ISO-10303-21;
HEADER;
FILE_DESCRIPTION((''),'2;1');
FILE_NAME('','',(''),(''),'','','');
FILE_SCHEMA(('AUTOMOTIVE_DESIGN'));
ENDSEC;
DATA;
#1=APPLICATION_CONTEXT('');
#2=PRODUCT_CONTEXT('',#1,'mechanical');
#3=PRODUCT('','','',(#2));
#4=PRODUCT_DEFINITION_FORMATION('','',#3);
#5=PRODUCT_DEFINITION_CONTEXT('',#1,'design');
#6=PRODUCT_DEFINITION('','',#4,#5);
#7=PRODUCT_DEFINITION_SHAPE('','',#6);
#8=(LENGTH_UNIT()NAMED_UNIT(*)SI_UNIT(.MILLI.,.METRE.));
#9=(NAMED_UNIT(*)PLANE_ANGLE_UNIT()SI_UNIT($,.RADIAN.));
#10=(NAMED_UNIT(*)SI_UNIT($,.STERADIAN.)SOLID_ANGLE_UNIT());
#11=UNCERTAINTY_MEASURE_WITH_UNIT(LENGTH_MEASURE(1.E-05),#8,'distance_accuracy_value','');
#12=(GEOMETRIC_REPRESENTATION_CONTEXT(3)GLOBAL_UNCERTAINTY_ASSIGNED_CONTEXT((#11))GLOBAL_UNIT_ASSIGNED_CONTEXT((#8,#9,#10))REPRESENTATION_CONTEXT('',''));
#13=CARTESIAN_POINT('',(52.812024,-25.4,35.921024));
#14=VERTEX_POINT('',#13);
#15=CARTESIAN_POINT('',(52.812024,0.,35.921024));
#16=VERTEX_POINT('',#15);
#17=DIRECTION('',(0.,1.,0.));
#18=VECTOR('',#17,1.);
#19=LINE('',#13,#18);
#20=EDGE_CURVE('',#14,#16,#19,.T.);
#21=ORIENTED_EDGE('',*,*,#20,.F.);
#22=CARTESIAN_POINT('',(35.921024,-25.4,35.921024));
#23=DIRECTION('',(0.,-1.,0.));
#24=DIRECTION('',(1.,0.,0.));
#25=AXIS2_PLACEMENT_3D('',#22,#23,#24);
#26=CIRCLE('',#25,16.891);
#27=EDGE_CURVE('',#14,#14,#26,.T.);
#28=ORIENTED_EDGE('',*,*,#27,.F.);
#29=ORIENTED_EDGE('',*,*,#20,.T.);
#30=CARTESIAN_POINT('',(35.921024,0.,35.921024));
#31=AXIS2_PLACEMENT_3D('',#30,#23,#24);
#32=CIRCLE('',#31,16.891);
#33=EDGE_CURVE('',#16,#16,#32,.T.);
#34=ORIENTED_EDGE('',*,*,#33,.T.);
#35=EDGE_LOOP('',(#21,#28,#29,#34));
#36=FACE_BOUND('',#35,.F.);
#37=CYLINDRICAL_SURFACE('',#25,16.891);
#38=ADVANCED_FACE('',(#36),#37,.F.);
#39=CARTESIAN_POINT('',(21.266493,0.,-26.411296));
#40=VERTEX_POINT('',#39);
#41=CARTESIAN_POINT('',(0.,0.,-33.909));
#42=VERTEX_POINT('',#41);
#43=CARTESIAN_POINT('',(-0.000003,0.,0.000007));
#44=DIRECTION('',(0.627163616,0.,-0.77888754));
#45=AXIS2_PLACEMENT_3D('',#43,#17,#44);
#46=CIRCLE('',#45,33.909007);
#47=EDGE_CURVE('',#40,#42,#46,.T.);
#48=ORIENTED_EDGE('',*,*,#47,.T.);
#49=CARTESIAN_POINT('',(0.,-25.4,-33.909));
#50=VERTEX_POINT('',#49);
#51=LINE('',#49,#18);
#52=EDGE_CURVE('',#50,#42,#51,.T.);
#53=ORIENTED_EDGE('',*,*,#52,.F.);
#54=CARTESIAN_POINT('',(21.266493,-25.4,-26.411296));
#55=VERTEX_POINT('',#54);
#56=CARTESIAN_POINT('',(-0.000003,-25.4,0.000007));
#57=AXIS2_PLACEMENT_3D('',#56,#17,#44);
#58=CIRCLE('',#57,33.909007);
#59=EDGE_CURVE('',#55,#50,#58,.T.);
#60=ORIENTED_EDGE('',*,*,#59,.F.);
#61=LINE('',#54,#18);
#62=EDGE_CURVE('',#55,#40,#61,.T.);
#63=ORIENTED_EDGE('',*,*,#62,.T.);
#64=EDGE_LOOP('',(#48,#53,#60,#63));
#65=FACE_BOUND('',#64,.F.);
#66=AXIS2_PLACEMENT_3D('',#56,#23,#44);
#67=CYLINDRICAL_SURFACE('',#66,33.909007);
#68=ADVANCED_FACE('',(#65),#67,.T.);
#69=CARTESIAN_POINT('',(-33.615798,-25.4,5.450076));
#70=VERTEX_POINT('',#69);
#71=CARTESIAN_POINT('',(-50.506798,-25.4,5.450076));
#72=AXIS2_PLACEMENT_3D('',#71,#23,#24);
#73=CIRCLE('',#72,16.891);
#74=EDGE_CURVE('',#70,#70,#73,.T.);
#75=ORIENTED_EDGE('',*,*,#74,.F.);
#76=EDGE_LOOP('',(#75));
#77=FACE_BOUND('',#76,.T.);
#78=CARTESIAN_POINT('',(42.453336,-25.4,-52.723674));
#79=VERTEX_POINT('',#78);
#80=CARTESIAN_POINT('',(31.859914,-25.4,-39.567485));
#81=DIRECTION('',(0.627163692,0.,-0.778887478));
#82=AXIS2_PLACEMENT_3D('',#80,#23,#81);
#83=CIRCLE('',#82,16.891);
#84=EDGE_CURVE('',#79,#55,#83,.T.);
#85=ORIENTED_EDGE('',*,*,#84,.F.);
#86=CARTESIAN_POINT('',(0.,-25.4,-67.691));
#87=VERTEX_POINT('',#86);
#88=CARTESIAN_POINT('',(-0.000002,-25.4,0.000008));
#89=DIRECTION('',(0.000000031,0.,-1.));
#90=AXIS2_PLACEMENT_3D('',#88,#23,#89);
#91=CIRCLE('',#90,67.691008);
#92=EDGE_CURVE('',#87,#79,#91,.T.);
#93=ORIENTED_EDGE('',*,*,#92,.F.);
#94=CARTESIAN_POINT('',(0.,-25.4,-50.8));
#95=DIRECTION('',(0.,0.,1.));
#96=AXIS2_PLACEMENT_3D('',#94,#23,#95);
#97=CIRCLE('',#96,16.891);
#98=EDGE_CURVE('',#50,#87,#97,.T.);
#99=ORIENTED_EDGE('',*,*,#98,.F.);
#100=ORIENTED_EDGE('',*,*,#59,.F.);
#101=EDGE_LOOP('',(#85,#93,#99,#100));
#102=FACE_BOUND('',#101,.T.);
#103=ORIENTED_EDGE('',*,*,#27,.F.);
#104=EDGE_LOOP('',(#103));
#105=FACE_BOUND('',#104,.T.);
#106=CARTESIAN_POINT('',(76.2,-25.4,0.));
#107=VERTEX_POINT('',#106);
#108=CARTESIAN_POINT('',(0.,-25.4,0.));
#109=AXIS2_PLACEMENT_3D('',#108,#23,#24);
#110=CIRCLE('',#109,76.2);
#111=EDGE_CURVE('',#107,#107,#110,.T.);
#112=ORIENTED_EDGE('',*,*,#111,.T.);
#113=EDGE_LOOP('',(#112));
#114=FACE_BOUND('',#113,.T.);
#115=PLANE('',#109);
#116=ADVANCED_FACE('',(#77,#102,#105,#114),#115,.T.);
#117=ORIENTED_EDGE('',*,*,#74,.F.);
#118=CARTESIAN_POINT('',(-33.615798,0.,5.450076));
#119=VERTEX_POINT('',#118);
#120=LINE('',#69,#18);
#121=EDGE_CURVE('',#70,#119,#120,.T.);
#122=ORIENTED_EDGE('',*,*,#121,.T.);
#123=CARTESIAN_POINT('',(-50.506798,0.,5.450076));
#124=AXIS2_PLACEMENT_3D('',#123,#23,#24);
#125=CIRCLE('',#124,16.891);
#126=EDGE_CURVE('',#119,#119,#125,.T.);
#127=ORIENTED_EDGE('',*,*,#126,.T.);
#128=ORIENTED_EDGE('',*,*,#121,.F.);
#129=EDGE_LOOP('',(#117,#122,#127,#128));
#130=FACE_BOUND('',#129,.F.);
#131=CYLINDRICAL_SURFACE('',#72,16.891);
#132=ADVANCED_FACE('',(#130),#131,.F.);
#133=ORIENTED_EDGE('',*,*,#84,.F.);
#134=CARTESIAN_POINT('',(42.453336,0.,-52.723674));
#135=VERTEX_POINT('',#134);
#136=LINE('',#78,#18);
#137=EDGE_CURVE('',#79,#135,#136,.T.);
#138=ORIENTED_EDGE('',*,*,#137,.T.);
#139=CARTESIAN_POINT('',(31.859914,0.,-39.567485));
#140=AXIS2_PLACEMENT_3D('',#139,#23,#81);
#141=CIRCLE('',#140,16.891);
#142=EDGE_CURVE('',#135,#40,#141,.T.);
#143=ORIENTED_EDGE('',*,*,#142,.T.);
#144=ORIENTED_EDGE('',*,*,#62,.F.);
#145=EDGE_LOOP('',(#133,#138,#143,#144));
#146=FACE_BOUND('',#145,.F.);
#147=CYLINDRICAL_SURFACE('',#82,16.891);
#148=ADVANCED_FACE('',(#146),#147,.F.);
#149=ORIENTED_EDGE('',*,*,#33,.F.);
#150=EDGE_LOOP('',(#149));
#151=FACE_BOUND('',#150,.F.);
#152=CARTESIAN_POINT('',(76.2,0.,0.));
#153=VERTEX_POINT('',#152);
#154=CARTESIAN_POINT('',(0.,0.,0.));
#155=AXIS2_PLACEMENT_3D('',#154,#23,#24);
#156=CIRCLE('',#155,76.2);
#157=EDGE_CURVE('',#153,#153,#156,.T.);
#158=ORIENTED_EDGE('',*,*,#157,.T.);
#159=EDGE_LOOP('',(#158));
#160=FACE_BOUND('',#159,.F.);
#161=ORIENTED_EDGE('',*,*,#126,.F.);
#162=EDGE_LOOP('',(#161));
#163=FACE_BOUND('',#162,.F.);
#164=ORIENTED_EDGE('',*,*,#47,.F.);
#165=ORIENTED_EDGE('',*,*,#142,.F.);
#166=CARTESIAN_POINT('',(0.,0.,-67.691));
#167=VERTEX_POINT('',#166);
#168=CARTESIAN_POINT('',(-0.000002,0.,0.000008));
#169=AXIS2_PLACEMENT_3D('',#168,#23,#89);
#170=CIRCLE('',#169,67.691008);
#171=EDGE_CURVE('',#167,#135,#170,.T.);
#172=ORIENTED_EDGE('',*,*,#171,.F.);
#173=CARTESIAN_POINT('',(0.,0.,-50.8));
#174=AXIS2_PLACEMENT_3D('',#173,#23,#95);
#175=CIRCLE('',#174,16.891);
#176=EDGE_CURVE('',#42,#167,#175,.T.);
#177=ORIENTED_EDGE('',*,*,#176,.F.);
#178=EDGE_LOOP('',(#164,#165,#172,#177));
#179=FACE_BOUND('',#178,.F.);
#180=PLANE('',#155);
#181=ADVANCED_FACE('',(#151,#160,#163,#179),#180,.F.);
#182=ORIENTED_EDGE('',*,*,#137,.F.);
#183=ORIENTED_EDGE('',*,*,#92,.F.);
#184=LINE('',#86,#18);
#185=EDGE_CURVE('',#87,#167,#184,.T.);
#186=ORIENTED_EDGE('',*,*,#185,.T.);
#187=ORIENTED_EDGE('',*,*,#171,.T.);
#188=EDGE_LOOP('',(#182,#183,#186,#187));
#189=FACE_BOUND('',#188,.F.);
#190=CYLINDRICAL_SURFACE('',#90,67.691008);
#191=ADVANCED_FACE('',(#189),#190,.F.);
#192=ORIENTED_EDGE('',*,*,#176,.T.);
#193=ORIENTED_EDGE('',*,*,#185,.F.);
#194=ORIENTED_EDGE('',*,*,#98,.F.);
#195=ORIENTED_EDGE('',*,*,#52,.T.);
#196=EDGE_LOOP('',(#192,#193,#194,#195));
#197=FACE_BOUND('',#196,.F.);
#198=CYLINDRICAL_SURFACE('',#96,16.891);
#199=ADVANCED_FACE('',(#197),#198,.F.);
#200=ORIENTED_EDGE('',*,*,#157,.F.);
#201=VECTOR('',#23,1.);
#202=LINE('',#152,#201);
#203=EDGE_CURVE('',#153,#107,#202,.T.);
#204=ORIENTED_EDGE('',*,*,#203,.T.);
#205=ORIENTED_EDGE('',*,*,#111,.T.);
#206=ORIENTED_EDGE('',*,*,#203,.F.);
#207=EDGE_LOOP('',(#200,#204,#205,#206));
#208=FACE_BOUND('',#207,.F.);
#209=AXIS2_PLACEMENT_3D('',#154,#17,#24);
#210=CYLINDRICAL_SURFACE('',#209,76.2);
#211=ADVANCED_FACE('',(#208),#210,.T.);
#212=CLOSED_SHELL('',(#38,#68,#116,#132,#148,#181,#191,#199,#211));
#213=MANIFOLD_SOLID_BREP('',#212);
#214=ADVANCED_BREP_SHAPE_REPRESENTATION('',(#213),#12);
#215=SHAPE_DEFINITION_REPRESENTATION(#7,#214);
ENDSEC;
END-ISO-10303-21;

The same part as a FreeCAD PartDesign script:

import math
import FreeCAD as App
import Part
import Sketcher
from FreeCAD import Vector
Q = App.Units.Quantity

doc = App.newDocument("Part")
body = doc.addObject("PartDesign::Body", "Body")

sketch1 = doc.addObject("Sketcher::SketchObject", "Sketch")
body.addObject(sketch1)
sketch1.AttachmentSupport = (doc.XZ_Plane, [""])
sketch1.MapMode = "FlatFace"
sketch1.addGeometry(Part.Circle(Vector(0, 0, 0), Vector(0, 0, 1), 76), False)
sketch1.addConstraint([
    Sketcher.Constraint("Coincident", 0, 3, -1, 1),
    Sketcher.Constraint("Diameter", 0, Q("6 in")),
])
pad1 = doc.addObject("PartDesign::Pad", "Pad")
body.addObject(pad1)
pad1.Profile = sketch1
pad1.Length = Q("1 in")

sketch2 = doc.addObject("Sketcher::SketchObject", "Sketch001")
body.addObject(sketch2)
sketch2.AttachmentSupport = (doc.XZ_Plane, [""])
sketch2.MapMode = "FlatFace"
sketch2.AttachmentOffset = App.Placement(Vector(0, 0, 1 * 25.4), App.Rotation())
sketch2.addGeometry([
    Part.Circle(Vector(36, 36, 0), Vector(0, 0, 1), 17),
    Part.ArcOfCircle(Part.Circle(Vector(0, 0, 0), Vector(0, 0, 1), 34), math.radians(-90), math.radians(-51)),
    Part.ArcOfCircle(Part.Circle(Vector(0, -51, 0), Vector(0, 0, 1), 17), math.radians(90), math.radians(270)),
    Part.ArcOfCircle(Part.Circle(Vector(0, 0, 0), Vector(0, 0, 1), 68), math.radians(-90), math.radians(-51)),
    Part.ArcOfCircle(Part.Circle(Vector(32, -40, 0), Vector(0, 0, 1), 17), math.radians(-51), math.radians(129)),
    Part.Circle(Vector(-51, 5, 0), Vector(0, 0, 1), 17),
], False)
sketch2.addConstraint([
    Sketcher.Constraint("Tangent", 1, 1, 2, 1),
    Sketcher.Constraint("Tangent", 2, 2, 3, 1),
    Sketcher.Constraint("Tangent", 3, 2, 4, 1),
    Sketcher.Constraint("Tangent", 4, 2, 1, 2),
    Sketcher.Constraint("Coincident", 1, 3, -1, 1),
    Sketcher.Constraint("Coincident", 3, 3, -1, 1),
    Sketcher.Constraint("Equal", 0, 2),
    Sketcher.Constraint("Equal", 4, 5),
    Sketcher.Constraint("PointOnObject", 2, 3, -2),
    Sketcher.Constraint("Diameter", 0, Q("1.33 in")),
    Sketcher.Constraint("DistanceY", 2, 3, -1, 1, Q("2 in")),
    Sketcher.Constraint("DistanceX", 5, 3, -1, 1, Q("50.506798 mm")),
    Sketcher.Constraint("DistanceX", 4, 3, 0, 3, Q("4.06111 mm")),
    Sketcher.Constraint("DistanceY", 4, 3, 0, 3, Q("75.488509 mm")),
    Sketcher.Constraint("DistanceY", 1, 3, 5, 3, Q("5.450069 mm")),
    Sketcher.Constraint("DistanceY", 5, 3, 0, 3, Q("30.470948 mm")),
])
pocket1 = doc.addObject("PartDesign::Pocket", "Pocket")
body.addObject(pocket1)
pocket1.Profile = sketch2
pocket1.Length = Q("1 in")

doc.recompute()
